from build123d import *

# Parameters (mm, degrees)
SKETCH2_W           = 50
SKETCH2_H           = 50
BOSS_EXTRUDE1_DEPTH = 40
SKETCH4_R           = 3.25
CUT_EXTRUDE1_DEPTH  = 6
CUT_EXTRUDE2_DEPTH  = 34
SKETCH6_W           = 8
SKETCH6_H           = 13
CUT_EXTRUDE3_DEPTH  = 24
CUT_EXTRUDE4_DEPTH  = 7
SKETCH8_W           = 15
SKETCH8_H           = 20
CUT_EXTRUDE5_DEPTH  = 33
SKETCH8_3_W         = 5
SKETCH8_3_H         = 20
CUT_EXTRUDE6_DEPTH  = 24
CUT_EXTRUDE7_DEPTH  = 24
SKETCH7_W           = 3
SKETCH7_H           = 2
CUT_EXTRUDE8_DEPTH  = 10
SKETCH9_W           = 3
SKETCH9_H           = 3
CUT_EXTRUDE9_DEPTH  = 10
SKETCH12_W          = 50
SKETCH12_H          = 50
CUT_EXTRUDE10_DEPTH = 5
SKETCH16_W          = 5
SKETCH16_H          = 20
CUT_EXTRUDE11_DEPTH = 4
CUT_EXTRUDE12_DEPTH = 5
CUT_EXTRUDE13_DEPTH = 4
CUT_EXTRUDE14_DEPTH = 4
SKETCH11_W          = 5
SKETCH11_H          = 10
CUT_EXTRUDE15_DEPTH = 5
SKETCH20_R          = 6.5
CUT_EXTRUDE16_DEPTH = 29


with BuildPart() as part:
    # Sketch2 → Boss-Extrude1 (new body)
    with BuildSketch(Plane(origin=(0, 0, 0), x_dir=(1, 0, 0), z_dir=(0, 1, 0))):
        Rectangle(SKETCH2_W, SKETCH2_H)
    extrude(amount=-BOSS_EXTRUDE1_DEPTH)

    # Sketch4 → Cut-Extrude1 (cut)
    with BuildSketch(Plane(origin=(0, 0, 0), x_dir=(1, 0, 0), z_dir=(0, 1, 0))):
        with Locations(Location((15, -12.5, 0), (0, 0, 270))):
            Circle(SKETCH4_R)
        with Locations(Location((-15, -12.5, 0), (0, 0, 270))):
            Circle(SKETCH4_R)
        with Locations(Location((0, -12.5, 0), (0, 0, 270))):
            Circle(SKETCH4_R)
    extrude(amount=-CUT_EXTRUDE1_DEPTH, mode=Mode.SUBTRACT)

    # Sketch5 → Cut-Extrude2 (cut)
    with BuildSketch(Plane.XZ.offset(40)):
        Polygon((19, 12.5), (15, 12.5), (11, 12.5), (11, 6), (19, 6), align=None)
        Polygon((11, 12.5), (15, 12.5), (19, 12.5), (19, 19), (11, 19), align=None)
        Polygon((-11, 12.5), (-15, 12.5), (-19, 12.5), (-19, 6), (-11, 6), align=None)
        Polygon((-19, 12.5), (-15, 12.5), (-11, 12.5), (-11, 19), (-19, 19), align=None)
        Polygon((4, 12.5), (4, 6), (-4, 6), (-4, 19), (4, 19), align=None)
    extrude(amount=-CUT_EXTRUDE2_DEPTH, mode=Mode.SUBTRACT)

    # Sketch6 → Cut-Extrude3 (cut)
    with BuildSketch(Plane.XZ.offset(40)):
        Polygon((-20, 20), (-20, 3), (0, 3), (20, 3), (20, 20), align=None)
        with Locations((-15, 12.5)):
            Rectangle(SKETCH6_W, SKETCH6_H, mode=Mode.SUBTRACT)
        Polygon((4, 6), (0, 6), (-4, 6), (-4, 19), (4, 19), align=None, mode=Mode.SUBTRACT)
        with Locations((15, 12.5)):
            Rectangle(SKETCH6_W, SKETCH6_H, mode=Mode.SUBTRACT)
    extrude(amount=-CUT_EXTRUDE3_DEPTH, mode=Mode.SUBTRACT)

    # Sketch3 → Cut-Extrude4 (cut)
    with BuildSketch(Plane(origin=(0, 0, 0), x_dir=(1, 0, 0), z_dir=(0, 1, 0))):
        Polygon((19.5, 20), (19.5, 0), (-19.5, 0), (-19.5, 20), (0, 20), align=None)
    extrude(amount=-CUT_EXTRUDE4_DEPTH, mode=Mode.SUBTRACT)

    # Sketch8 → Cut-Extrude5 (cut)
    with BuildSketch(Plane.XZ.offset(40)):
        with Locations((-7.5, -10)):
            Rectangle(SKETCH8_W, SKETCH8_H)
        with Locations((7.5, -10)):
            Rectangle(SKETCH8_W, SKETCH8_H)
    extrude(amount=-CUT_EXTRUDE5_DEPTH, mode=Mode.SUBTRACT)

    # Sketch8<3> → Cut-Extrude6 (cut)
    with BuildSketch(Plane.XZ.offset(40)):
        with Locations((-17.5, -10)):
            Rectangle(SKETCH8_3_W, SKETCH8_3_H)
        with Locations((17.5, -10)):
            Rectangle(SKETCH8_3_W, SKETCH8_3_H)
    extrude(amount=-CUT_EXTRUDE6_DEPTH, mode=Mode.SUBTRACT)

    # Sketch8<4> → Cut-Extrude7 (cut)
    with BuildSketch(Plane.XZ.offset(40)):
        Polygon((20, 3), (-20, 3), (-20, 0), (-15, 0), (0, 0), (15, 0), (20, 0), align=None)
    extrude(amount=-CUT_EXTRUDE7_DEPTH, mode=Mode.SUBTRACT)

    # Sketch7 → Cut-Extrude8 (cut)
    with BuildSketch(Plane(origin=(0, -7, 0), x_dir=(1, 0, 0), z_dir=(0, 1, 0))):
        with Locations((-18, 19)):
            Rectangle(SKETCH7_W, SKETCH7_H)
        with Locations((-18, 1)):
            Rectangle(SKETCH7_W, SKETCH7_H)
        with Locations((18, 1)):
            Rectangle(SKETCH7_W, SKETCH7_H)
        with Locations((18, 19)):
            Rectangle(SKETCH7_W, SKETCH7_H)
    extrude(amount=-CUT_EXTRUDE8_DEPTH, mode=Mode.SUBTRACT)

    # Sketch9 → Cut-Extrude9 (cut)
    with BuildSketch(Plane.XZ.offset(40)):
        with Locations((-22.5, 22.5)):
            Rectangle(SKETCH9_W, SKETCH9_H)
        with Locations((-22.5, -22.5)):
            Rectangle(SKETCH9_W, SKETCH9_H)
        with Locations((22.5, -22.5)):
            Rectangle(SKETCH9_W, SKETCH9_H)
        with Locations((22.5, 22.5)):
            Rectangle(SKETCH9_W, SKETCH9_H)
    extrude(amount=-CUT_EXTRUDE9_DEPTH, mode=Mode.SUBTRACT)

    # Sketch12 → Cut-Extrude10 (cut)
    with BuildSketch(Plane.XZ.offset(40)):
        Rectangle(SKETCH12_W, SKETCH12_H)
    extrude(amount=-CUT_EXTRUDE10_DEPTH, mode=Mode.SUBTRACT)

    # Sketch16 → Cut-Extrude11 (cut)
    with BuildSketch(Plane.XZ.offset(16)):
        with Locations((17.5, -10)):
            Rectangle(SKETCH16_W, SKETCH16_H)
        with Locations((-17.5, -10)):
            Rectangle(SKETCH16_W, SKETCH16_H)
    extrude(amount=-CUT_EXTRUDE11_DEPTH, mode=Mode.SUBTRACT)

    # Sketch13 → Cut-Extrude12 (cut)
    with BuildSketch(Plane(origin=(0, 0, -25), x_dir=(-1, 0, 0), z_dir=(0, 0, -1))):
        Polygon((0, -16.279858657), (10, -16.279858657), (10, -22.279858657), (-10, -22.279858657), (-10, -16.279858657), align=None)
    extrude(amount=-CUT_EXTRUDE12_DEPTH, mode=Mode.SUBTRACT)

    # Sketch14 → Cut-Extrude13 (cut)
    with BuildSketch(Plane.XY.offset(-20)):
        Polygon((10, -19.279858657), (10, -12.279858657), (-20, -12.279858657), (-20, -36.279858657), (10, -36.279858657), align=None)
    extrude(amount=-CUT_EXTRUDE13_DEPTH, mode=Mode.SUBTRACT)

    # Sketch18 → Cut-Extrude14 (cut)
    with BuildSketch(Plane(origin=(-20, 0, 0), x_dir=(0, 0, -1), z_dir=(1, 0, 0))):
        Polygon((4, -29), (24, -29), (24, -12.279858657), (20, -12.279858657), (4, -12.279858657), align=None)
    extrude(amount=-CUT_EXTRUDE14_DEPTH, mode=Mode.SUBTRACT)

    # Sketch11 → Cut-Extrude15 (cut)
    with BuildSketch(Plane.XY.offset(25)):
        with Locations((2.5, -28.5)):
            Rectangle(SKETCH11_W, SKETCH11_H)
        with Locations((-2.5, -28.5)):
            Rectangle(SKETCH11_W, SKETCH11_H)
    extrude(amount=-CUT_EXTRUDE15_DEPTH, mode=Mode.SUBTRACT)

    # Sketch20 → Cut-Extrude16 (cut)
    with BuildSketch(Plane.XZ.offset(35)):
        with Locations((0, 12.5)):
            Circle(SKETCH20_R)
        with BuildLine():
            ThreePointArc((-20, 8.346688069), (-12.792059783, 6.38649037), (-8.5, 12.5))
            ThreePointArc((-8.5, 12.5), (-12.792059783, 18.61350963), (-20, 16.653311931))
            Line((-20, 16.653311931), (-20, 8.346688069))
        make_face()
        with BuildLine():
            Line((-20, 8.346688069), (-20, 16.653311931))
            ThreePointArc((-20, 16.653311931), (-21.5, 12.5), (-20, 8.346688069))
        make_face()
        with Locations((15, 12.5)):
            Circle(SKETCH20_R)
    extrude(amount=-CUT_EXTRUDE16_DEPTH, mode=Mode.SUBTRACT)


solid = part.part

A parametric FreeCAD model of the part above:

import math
import FreeCAD as App
import Part
import Sketcher
Q = App.Units.Quantity


def add_polygon(sketch, points):
    """Adds a closed chain of lines whose ends are joined by coincident constraints."""
    first, n = sketch.GeometryCount, len(points)
    for a, b in zip(points, points[1:] + points[:1]):
        sketch.addGeometry(Part.LineSegment(App.Vector(*a, 0), App.Vector(*b, 0)), False)
    for i in range(n):
        sketch.addConstraint(Sketcher.Constraint("Coincident", first + i, 2, first + (i + 1) % n, 1))

doc = App.newDocument("Part")
body = doc.addObject("PartDesign::Body", "Body")

# Sketch on XZ plane
sketch1 = doc.addObject("Sketcher::SketchObject", "Sketch")
body.addObject(sketch1)
sketch1.AttachmentSupport = (doc.XZ_Plane, [""])
sketch1.MapMode = "FlatFace"
add_polygon(sketch1, [(-25, -25), (-25, 25), (25, 25), (25, -25)])  # lines 0-3
sketch1.addConstraint([
    Sketcher.Constraint("Vertical", 0),
    Sketcher.Constraint("Horizontal", 1),
    Sketcher.Constraint("Vertical", 2),
    Sketcher.Constraint("Horizontal", 3),
    Sketcher.Constraint("Symmetric", 0, 2, 2, 2, -1, 1),
    Sketcher.Constraint("Equal", 3, 0),
    Sketcher.Constraint("DistanceX", 1, 1, 1, 2, Q("50 mm")),
])
pad1 = doc.addObject("PartDesign::Pad", "Pad")
body.addObject(pad1)
pad1.Profile = sketch1
pad1.Length = 40

# Sketch on XZ plane
sketch2 = doc.addObject("Sketcher::SketchObject", "Sketch001")
body.addObject(sketch2)
sketch2.AttachmentSupport = (doc.XZ_Plane, [""])
sketch2.MapMode = "FlatFace"
sketch2.addGeometry([
    Part.Circle(App.Vector(15, 12.5, 0), App.Vector(0, 0, 1), 3.2),
    Part.Circle(App.Vector(-15, 12.5, 0), App.Vector(0, 0, 1), 3.2),
    Part.Circle(App.Vector(0, 12.5, 0), App.Vector(0, 0, 1), 3.2),
], False)
sketch2.addConstraint([
    Sketcher.Constraint("Equal", 0, 1),
    Sketcher.Constraint("Equal", 1, 2),
    Sketcher.Constraint("Symmetric", 0, 3, 1, 3, -2),
    Sketcher.Constraint("PointOnObject", 2, 3, -2),
    Sketcher.Constraint("Horizontal", 1, 3, 2, 3),
    Sketcher.Constraint("Diameter", 0, Q("6.5 mm")),
    Sketcher.Constraint("DistanceX", -1, 1, 0, 3, Q("15 mm")),
    Sketcher.Constraint("DistanceY", -1, 1, 0, 3, Q("12.5 mm")),
])
pocket1 = doc.addObject("PartDesign::Pocket", "Pocket")
body.addObject(pocket1)
pocket1.Profile = sketch2
pocket1.Length = 6
pocket1.Reversed = True

# Sketch on XZ plane
sketch3 = doc.addObject("Sketcher::SketchObject", "Sketch002")
body.addObject(sketch3)
sketch3.AttachmentSupport = (doc.XZ_Plane, [""])
sketch3.MapMode = "FlatFace"
sketch3.AttachmentOffset = App.Placement(App.Vector(0, 0, 40), App.Rotation())
add_polygon(sketch3, [(11, 6), (19, 6), (19, 19), (11, 19)])  # lines 0-3
add_polygon(sketch3, [(-19, 6), (-11, 6), (-11, 19), (-19, 19)])  # lines 4-7
add_polygon(sketch3, [(4, 6), (4, 19), (-4, 19), (-4, 6)])  # lines 8-11
sketch3.addConstraint([
    Sketcher.Constraint("Horizontal", 0),
    Sketcher.Constraint("Vertical", 1),
    Sketcher.Constraint("Horizontal", 2),
    Sketcher.Constraint("Vertical", 3),
    Sketcher.Constraint("Horizontal", 4),
    Sketcher.Constraint("Vertical", 5),
    Sketcher.Constraint("Horizontal", 6),
    Sketcher.Constraint("Vertical", 7),
    Sketcher.Constraint("Vertical", 8),
    Sketcher.Constraint("Horizontal", 9),
    Sketcher.Constraint("Vertical", 10),
    Sketcher.Constraint("Horizontal", 11),
    Sketcher.Constraint("Symmetric", 3, 2, 4, 2, -2),
    Sketcher.Constraint("Symmetric", 1, 2, 6, 2, -2),
    Sketcher.Constraint("Horizontal", 6, 2, 8, 2),
    Sketcher.Constraint("Horizontal", 7, 2, 10, 2),
    Sketcher.Constraint("Equal", 6, 9),
    Sketcher.Constraint("DistanceX", 0, 1, 0, 2, Q("8 mm")),
    Sketcher.Constraint("DistanceY", 1, 1, 1, 2, Q("13 mm")),
    Sketcher.Constraint("DistanceX", -1, 1, 0, 2, Q("19 mm")),
    Sketcher.Constraint("DistanceY", -1, 1, 0, 2, Q("6 mm")),
    Sketcher.Constraint("DistanceX", -1, 1, 8, 2, Q("4 mm")),
])
pocket2 = doc.addObject("PartDesign::Pocket", "Pocket001")
body.addObject(pocket2)
pocket2.Profile = sketch3
pocket2.Length = 34

# Sketch on XZ plane
sketch4 = doc.addObject("Sketcher::SketchObject", "Sketch003")
body.addObject(sketch4)
sketch4.AttachmentSupport = (doc.XZ_Plane, [""])
sketch4.MapMode = "FlatFace"
sketch4.AttachmentOffset = App.Placement(App.Vector(0, 0, 40), App.Rotation())
add_polygon(sketch4, [(-20, 20), (-20, 3), (20, 3), (20, 20)])  # lines 0-3
add_polygon(sketch4, [(-11, 6), (-19, 6), (-19, 19), (-11, 19)])  # lines 4-7
add_polygon(sketch4, [(4, 19), (4, 6), (-4, 6), (-4, 19)])  # lines 8-11
add_polygon(sketch4, [(19, 6), (11, 6), (11, 19), (19, 19)])  # lines 12-15
sketch4.addConstraint([
    Sketcher.Constraint("Vertical", 0),
    Sketcher.Constraint("Horizontal", 1),
    Sketcher.Constraint("Vertical", 2),
    Sketcher.Constraint("Horizontal", 3),
    Sketcher.Constraint("Horizontal", 4),
    Sketcher.Constraint("Vertical", 5),
    Sketcher.Constraint("Horizontal", 6),
    Sketcher.Constraint("Vertical", 7),
    Sketcher.Constraint("Vertical", 8),
    Sketcher.Constraint("Horizontal", 9),
    Sketcher.Constraint("Vertical", 10),
    Sketcher.Constraint("Horizontal", 11),
    Sketcher.Constraint("Horizontal", 12),
    Sketcher.Constraint("Vertical", 13),
    Sketcher.Constraint("Horizontal", 14),
    Sketcher.Constraint("Vertical", 15),
    Sketcher.Constraint("Symmetric", 7, 2, 12, 2, -2),
    Sketcher.Constraint("Symmetric", 5, 2, 14, 2, -2),
    Sketcher.Constraint("Horizontal", 7, 2, 8, 2),
    Sketcher.Constraint("Horizontal", 6, 2, 10, 2),
    Sketcher.Constraint("Equal", 6, 9),
    Sketcher.Constraint("DistanceX", 1, 1, 1, 2, Q("40 mm")),
    Sketcher.Constraint("DistanceX", 4, 2, 4, 1, Q("8 mm")),
    Sketcher.Constraint("DistanceY", 0, 2, 0, 1, Q("17 mm")),
    Sketcher.Constraint("DistanceY", 5, 1, 5, 2, Q("13 mm")),
    Sketcher.Constraint("DistanceX", 0, 2, -1, 1, Q("20 mm")),
    Sketcher.Constraint("DistanceY", -1, 1, 0, 2, Q("3 mm")),
    Sketcher.Constraint("DistanceX", 4, 2, -1, 1, Q("19 mm")),
    Sketcher.Constraint("DistanceY", -1, 1, 4, 2, Q("6 mm")),
    Sketcher.Constraint("DistanceX", -1, 1, 8, 2, Q("4 mm")),
])
pocket3 = doc.addObject("PartDesign::Pocket", "Pocket002")
body.addObject(pocket3)
pocket3.Profile = sketch4
pocket3.Length = 24

# Sketch on XZ plane
sketch5 = doc.addObject("Sketcher::SketchObject", "Sketch004")
body.addObject(sketch5)
sketch5.AttachmentSupport = (doc.XZ_Plane, [""])
sketch5.MapMode = "FlatFace"
add_polygon(sketch5, [(20, 0), (20, -20), (-20, -20), (-20, 0)])  # lines 0-3
sketch5.addConstraint([
    Sketcher.Constraint("Vertical", 0),
    Sketcher.Constraint("Horizontal", 1),
    Sketcher.Constraint("Vertical", 2),
    Sketcher.Constraint("Horizontal", 3),
    Sketcher.Constraint("Symmetric", 2, 2, 3, 2, -1, 1),
    Sketcher.Constraint("DistanceX", 1, 2, 1, 1, Q("39 mm")),
    Sketcher.Constraint("DistanceY", 0, 2, 0, 1, Q("20 mm")),
])
pocket4 = doc.addObject("PartDesign::Pocket", "Pocket003")
body.addObject(pocket4)
pocket4.Profile = sketch5
pocket4.Length = 7
pocket4.Reversed = True

# Sketch on XZ plane
sketch6 = doc.addObject("Sketcher::SketchObject", "Sketch005")
body.addObject(sketch6)
sketch6.AttachmentSupport = (doc.XZ_Plane, [""])
sketch6.MapMode = "FlatFace"
sketch6.AttachmentOffset = App.Placement(App.Vector(0, 0, 40), App.Rotation())
add_polygon(sketch6, [(-15, 0), (-15, -20), (15, -20), (15, 0)])  # lines 0-3
sketch6.addConstraint([
    Sketcher.Constraint("Vertical", 0),
    Sketcher.Constraint("Horizontal", 1),
    Sketcher.Constraint("Vertical", 2),
    Sketcher.Constraint("Horizontal", 3),
    Sketcher.Constraint("Symmetric", 2, 2, 3, 2, -1, 1),
    Sketcher.Constraint("DistanceX", 1, 1, 1, 2, Q("30 mm")),
    Sketcher.Constraint("DistanceY", 0, 2, 0, 1, Q("20 mm")),
])
pocket5 = doc.addObject("PartDesign::Pocket", "Pocket004")
body.addObject(pocket5)
pocket5.Profile = sketch6
pocket5.Length = 33

# Sketch on XZ plane
sketch7 = doc.addObject("Sketcher::SketchObject", "Sketch006")
body.addObject(sketch7)
sketch7.AttachmentSupport = (doc.XZ_Plane, [""])
sketch7.MapMode = "FlatFace"
sketch7.AttachmentOffset = App.Placement(App.Vector(0, 0, 40), App.Rotation())
add_polygon(sketch7, [(-20, 0), (-20, -20), (-15, -20), (-15, 0)])  # lines 0-3
add_polygon(sketch7, [(15, 0), (15, -20), (20, -20), (20, 0)])  # lines 4-7
sketch7.addConstraint([
    Sketcher.Constraint("Vertical", 0),
    Sketcher.Constraint("Horizontal", 1),
    Sketcher.Constraint("Vertical", 2),
    Sketcher.Constraint("Horizontal", 3),
    Sketcher.Constraint("Vertical", 4),
    Sketcher.Constraint("Horizontal", 5),
    Sketcher.Constraint("Vertical", 6),
    Sketcher.Constraint("Horizontal", 7),
    Sketcher.Constraint("Symmetric", 3, 2, 6, 2, -1, 1),
    Sketcher.Constraint("Symmetric", 1, 2, 4, 2, -2),
    Sketcher.Constraint("PointOnObject", 2, 2, -1),
    Sketcher.Constraint("DistanceX", 1, 1, 1, 2, Q("5 mm")),
    Sketcher.Constraint("DistanceY", 0, 2, 0, 1, Q("20 mm")),
    Sketcher.Constraint("DistanceX", 0, 2, -1, 1, Q("20 mm")),
])
pocket6 = doc.addObject("PartDesign::Pocket", "Pocket005")
body.addObject(pocket6)
pocket6.Profile = sketch7
pocket6.Length = 24

# Sketch on XZ plane
sketch8 = doc.addObject("Sketcher::SketchObject", "Sketch007")
body.addObject(sketch8)
sketch8.AttachmentSupport = (doc.XZ_Plane, [""])
sketch8.MapMode = "FlatFace"
sketch8.AttachmentOffset = App.Placement(App.Vector(0, 0, 40), App.Rotation())
add_polygon(sketch8, [(20, 3), (-20, 3), (-20, 0), (20, 0)])  # lines 0-3
sketch8.addConstraint([
    Sketcher.Constraint("Horizontal", 0),
    Sketcher.Constraint("Vertical", 1),
    Sketcher.Constraint("Horizontal", 2),
    Sketcher.Constraint("Vertical", 3),
    Sketcher.Constraint("Symmetric", 1, 2, 2, 2, -1, 1),
    Sketcher.Constraint("DistanceX", 0, 2, 0, 1, Q("40 mm")),
    Sketcher.Constraint("DistanceY", 1, 2, 1, 1, Q("3 mm")),
])
pocket7 = doc.addObject("PartDesign::Pocket", "Pocket006")
body.addObject(pocket7)
pocket7.Profile = sketch8
pocket7.Length = 24

# Sketch on XZ plane
sketch9 = doc.addObject("Sketcher::SketchObject", "Sketch008")
body.addObject(sketch9)
sketch9.AttachmentSupport = (doc.XZ_Plane, [""])
sketch9.MapMode = "FlatFace"
sketch9.AttachmentOffset = App.Placement(App.Vector(0, 0, 7), App.Rotation())
add_polygon(sketch9, [(-19.5, -20), (-19.5, -18), (-16.5, -18), (-16.5, -20)])  # lines 0-3
add_polygon(sketch9, [(-19.5, -2), (-19.5, 0), (-16.5, 0), (-16.5, -2)])  # lines 4-7
add_polygon(sketch9, [(16.5, -2), (16.5, 0), (19.5, 0), (19.5, -2)])  # lines 8-11
add_polygon(sketch9, [(16.5, -20), (16.5, -18), (19.5, -18), (19.5, -20)])  # lines 12-15
sketch9.addConstraint([
    Sketcher.Constraint("Vertical", 0),
    Sketcher.Constraint("Horizontal", 1),
    Sketcher.Constraint("Vertical", 2),
    Sketcher.Constraint("Horizontal", 3),
    Sketcher.Constraint("Vertical", 4),
    Sketcher.Constraint("Horizontal", 5),
    Sketcher.Constraint("Vertical", 6),
    Sketcher.Constraint("Horizontal", 7),
    Sketcher.Constraint("Vertical", 8),
    Sketcher.Constraint("Horizontal", 9),
    Sketcher.Constraint("Vertical", 10),
    Sketcher.Constraint("Horizontal", 11),
    Sketcher.Constraint("Vertical", 12),
    Sketcher.Constraint("Horizontal", 13),
    Sketcher.Constraint("Vertical", 14),
    Sketcher.Constraint("Horizontal", 15),
    Sketcher.Constraint("Symmetric", 5, 2, 8, 2, -1, 1),
    Sketcher.Constraint("Symmetric", 4, 2, 9, 2, -2),
    Sketcher.Constraint("Symmetric", 1, 2, 12, 2, -2),
    Sketcher.Constraint("Symmetric", 3, 2, 14, 2, -2),
    Sketcher.Constraint("Horizontal", 7, 2, 10, 2),
    Sketcher.Constraint("Vertical", 3, 2, 4, 2),
    Sketcher.Constraint("Vertical", 2, 2, 5, 2),
    Sketcher.Constraint("Equal", 2, 4),
    Sketcher.Constraint("DistanceX", 1, 1, 1, 2, Q("3 mm")),
    Sketcher.Constraint("DistanceY", 0, 1, 0, 2, Q("2 mm")),
    Sketcher.Constraint("DistanceY", 0, 2, -1, 1, Q("18 mm")),
    Sketcher.Constraint("DistanceX", 5, 2, 8, 2, Q("33 mm")),
])
pocket8 = doc.addObject("PartDesign::Pocket", "Pocket007")
body.addObject(pocket8)
pocket8.Profile = sketch9
pocket8.Length = 10
pocket8.Reversed = True

# Sketch on XZ plane
sketch10 = doc.addObject("Sketcher::SketchObject", "Sketch009")
body.addObject(sketch10)
sketch10.AttachmentSupport = (doc.XZ_Plane, [""])
sketch10.MapMode = "FlatFace"
sketch10.AttachmentOffset = App.Placement(App.Vector(0, 0, 40), App.Rotation())
add_polygon(sketch10, [(-24, 24), (-24, 21), (-21, 21), (-21, 24)])  # lines 0-3
add_polygon(sketch10, [(-24, -21), (-24, -24), (-21, -24), (-21, -21)])  # lines 4-7
add_polygon(sketch10, [(21, -21), (21, -24), (24, -24), (24, -21)])  # lines 8-11
add_polygon(sketch10, [(21, 24), (21, 21), (24, 21), (24, 24)])  # lines 12-15
sketch10.addConstraint([
    Sketcher.Constraint("Vertical", 0),
    Sketcher.Constraint("Horizontal", 1),
    Sketcher.Constraint("Vertical", 2),
    Sketcher.Constraint("Horizontal", 3),
    Sketcher.Constraint("Vertical", 4),
    Sketcher.Constraint("Horizontal", 5),
    Sketcher.Constraint("Vertical", 6),
    Sketcher.Constraint("Horizontal", 7),
    Sketcher.Constraint("Vertical", 8),
    Sketcher.Constraint("Horizontal", 9),
    Sketcher.Constraint("Vertical", 10),
    Sketcher.Constraint("Horizontal", 11),
    Sketcher.Constraint("Vertical", 12),
    Sketcher.Constraint("Horizontal", 13),
    Sketcher.Constraint("Vertical", 14),
    Sketcher.Constraint("Horizontal", 15),
    Sketcher.Constraint("Symmetric", 2, 2, 8, 2, -1, 1),
    Sketcher.Constraint("Symmetric", 0, 2, 10, 2, -1, 1),
    Sketcher.Constraint("Symmetric", 6, 2, 12, 2, -1, 1),
    Sketcher.Constraint("Symmetric", 4, 2, 14, 2, -1, 1),
    Sketcher.Constraint("Symmetric", 5, 2, 8, 2, -2),
    Sketcher.Constraint("Symmetric", 7, 2, 10, 2, -2),
    Sketcher.Constraint("Equal", 15, 0),
    Sketcher.Constraint("DistanceX", 1, 1, 1, 2, Q("3 mm")),
    Sketcher.Constraint("DistanceX", 0, 2, -1, 1, Q("24 mm")),
    Sketcher.Constraint("DistanceY", -1, 1, 0, 2, Q("21 mm")),
])
pocket9 = doc.addObject("PartDesign::Pocket", "Pocket008")
body.addObject(pocket9)
pocket9.Profile = sketch10
pocket9.Length = 10

# Sketch on XZ plane
sketch11 = doc.addObject("Sketcher::SketchObject", "Sketch010")
body.addObject(sketch11)
sketch11.AttachmentSupport = (doc.XZ_Plane, [""])
sketch11.MapMode = "FlatFace"
sketch11.AttachmentOffset = App.Placement(App.Vector(0, 0, 40), App.Rotation())
add_polygon(sketch11, [(-25, 25), (-25, -25), (25, -25), (25, 25)])  # lines 0-3
sketch11.addConstraint([
    Sketcher.Constraint("Vertical", 0),
    Sketcher.Constraint("Horizontal", 1),
    Sketcher.Constraint("Vertical", 2),
    Sketcher.Constraint("Horizontal", 3),
    Sketcher.Constraint("Symmetric", 0, 2, 2, 2, -1, 1),
    Sketcher.Constraint("Equal", 3, 0),
    Sketcher.Constraint("DistanceX", 1, 1, 1, 2, Q("50 mm")),
])
pocket10 = doc.addObject("PartDesign::Pocket", "Pocket009")
body.addObject(pocket10)
pocket10.Profile = sketch11
pocket10.Length = 5

# Sketch on XZ plane
sketch12 = doc.addObject("Sketcher::SketchObject", "Sketch011")
body.addObject(sketch12)
sketch12.AttachmentSupport = (doc.XZ_Plane, [""])
sketch12.MapMode = "FlatFace"
sketch12.AttachmentOffset = App.Placement(App.Vector(0, 0, 16), App.Rotation())
add_polygon(sketch12, [(15, 0), (15, -20), (20, -20), (20, 0)])  # lines 0-3
add_polygon(sketch12, [(-20, 0), (-20, -20), (-15, -20), (-15, 0)])  # lines 4-7
sketch12.addConstraint([
    Sketcher.Constraint("Vertical", 0),
    Sketcher.Constraint("Horizontal", 1),
    Sketcher.Constraint("Vertical", 2),
    Sketcher.Constraint("Horizontal", 3),
    Sketcher.Constraint("Vertical", 4),
    Sketcher.Constraint("Horizontal", 5),
    Sketcher.Constraint("Vertical", 6),
    Sketcher.Constraint("Horizontal", 7),
    Sketcher.Constraint("Symmetric", 3, 2, 6, 2, -1, 1),
    Sketcher.Constraint("Symmetric", 1, 2, 4, 2, -2),
    Sketcher.Constraint("PointOnObject", 2, 2, -1),
    Sketcher.Constraint("DistanceX", 1, 1, 1, 2, Q("5 mm")),
    Sketcher.Constraint("DistanceY", 0, 2, 0, 1, Q("20 mm")),
    Sketcher.Constraint("DistanceX", -1, 1, 0, 2, Q("15 mm")),
])
pocket11 = doc.addObject("PartDesign::Pocket", "Pocket010")
body.addObject(pocket11)
pocket11.Profile = sketch12
pocket11.Length = 4

# Sketch on XY plane
sketch13 = doc.addObject("Sketcher::SketchObject", "Sketch012")
body.addObject(sketch13)
sketch13.AttachmentSupport = (doc.XY_Plane, [""])
sketch13.MapMode = "FlatFace"
sketch13.AttachmentOffset = App.Placement(App.Vector(0, 0, -25), App.Rotation())
add_polygon(sketch13, [(-10, -16), (10, -16), (10, -22), (-10, -22)])  # lines 0-3
sketch13.addConstraint([
    Sketcher.Constraint("Horizontal", 0),
    Sketcher.Constraint("Vertical", 1),
    Sketcher.Constraint("Horizontal", 2),
    Sketcher.Constraint("Vertical", 3),
    Sketcher.Constraint("DistanceX", 0, 1, 0, 2, Q("20 mm")),
    Sketcher.Constraint("DistanceY", 1, 2, 1, 1, Q("6 mm")),
    Sketcher.Constraint("DistanceX", -1, 1, 0, 2, Q("10 mm")),
    Sketcher.Constraint("DistanceY", 0, 2, -1, 1, Q("16.279859 mm")),
])
pocket12 = doc.addObject("PartDesign::Pocket", "Pocket011")
body.addObject(pocket12)
pocket12.Profile = sketch13
pocket12.Length = 5
pocket12.Reversed = True

# Sketch on XY plane
sketch14 = doc.addObject("Sketcher::SketchObject", "Sketch013")
body.addObject(sketch14)
sketch14.AttachmentSupport = (doc.XY_Plane, [""])
sketch14.MapMode = "FlatFace"
sketch14.AttachmentOffset = App.Placement(App.Vector(0, 0, -20), App.Rotation())
add_polygon(sketch14, [(10, -12), (-20, -12), (-20, -36), (10, -36)])  # lines 0-3
sketch14.addConstraint([
    Sketcher.Constraint("Horizontal", 0),
    Sketcher.Constraint("Vertical", 1),
    Sketcher.Constraint("Horizontal", 2),
    Sketcher.Constraint("Vertical", 3),
    Sketcher.Constraint("DistanceX", 0, 2, 0, 1, Q("30 mm")),
    Sketcher.Constraint("DistanceY", 1, 2, 1, 1, Q("24 mm")),
    Sketcher.Constraint("DistanceX", 0, 2, -1, 1, Q("20 mm")),
    Sketcher.Constraint("DistanceY", 0, 2, -1, 1, Q("12.279859 mm")),
])
pocket13 = doc.addObject("PartDesign::Pocket", "Pocket012")
body.addObject(pocket13)
pocket13.Profile = sketch14
pocket13.Length = 4

# Sketch on YZ plane
sketch15 = doc.addObject("Sketcher::SketchObject", "Sketch014")
body.addObject(sketch15)
sketch15.AttachmentSupport = (doc.YZ_Plane, [""])
sketch15.MapMode = "FlatFace"
sketch15.AttachmentOffset = App.Placement(App.Vector(0, 0, -20), App.Rotation())
add_polygon(sketch15, [(-29, -4), (-29, -24), (-12, -24), (-12, -4)])  # lines 0-3
sketch15.addConstraint([
    Sketcher.Constraint("Vertical", 0),
    Sketcher.Constraint("Horizontal", 1),
    Sketcher.Constraint("Vertical", 2),
    Sketcher.Constraint("Horizontal", 3),
    Sketcher.Constraint("DistanceY", 0, 2, 0, 1, Q("20 mm")),
    Sketcher.Constraint("DistanceX", 0, 2, -1, 1, Q("29 mm")),
    Sketcher.Constraint("DistanceY", 0, 2, -1, 1, Q("24 mm")),
    Sketcher.Constraint("DistanceX", 1, 1, 1, 2, Q("16.720141 mm")),
])
pocket14 = doc.addObject("PartDesign::Pocket", "Pocket013")
body.addObject(pocket14)
pocket14.Profile = sketch15
pocket14.Length = 4

# Sketch on XY plane
sketch16 = doc.addObject("Sketcher::SketchObject", "Sketch015")
body.addObject(sketch16)
sketch16.AttachmentSupport = (doc.XY_Plane, [""])
sketch16.MapMode = "FlatFace"
sketch16.AttachmentOffset = App.Placement(App.Vector(0, 0, 25), App.Rotation())
add_polygon(sketch16, [(5, -34), (5, -24), (-5, -24), (-5, -34)])  # lines 0-3
sketch16.addConstraint([
    Sketcher.Constraint("Vertical", 0),
    Sketcher.Constraint("Horizontal", 1),
    Sketcher.Constraint("Vertical", 2),
    Sketcher.Constraint("Horizontal", 3),
    Sketcher.Constraint("Equal", 3, 0),
    Sketcher.Constraint("DistanceX", 1, 2, 1, 1, Q("10 mm")),
    Sketcher.Constraint("DistanceX", -1, 1, 0, 2, Q("5 mm")),
    Sketcher.Constraint("DistanceY", 0, 2, -1, 1, Q("23.5 mm")),
])
pocket15 = doc.addObject("PartDesign::Pocket", "Pocket014")
body.addObject(pocket15)
pocket15.Profile = sketch16
pocket15.Length = 5

# Sketch on XZ plane
sketch17 = doc.addObject("Sketcher::SketchObject", "Sketch016")
body.addObject(sketch17)
sketch17.AttachmentSupport = (doc.XZ_Plane, [""])
sketch17.MapMode = "FlatFace"
sketch17.AttachmentOffset = App.Placement(App.Vector(0, 0, 35), App.Rotation())
sketch17.addGeometry([
    Part.Circle(App.Vector(0, 12, 0), App.Vector(0, 0, 1), 6),  # 0
    Part.ArcOfCircle(Part.Circle(App.Vector(-15, 12, 0), App.Vector(0, 0, 1), 6), math.radians(-140), math.radians(0)),  # 1
    Part.ArcOfCircle(Part.Circle(App.Vector(-15, 12, 0), App.Vector(0, 0, 1), 6), math.radians(0), math.radians(140)),  # 2
    Part.ArcOfCircle(Part.Circle(App.Vector(-15, 12, 0), App.Vector(0, 0, 1), 6), math.radians(140), math.radians(220)),  # 3
    Part.Circle(App.Vector(15, 12, 0), App.Vector(0, 0, 1), 6),  # 4
], False)
sketch17.addConstraint([
    Sketcher.Constraint("Tangent", 1, 2, 2, 1),
    Sketcher.Constraint("Tangent", 2, 2, 3, 1),
    Sketcher.Constraint("Tangent", 3, 2, 1, 1),
    Sketcher.Constraint("Equal", 0, 1),
    Sketcher.Constraint("Equal", 3, 4),
    Sketcher.Constraint("Symmetric", 1, 3, 4, 3, -2),
    Sketcher.Constraint("PointOnObject", 0, 3, -2),
    Sketcher.Constraint("Horizontal", 0, 3, 1, 3),
    Sketcher.Constraint("Horizontal", 4, 3, 1, 2),
    Sketcher.Constraint("Vertical", 2, 2, 3, 2),
    Sketcher.Constraint("Diameter", 0, Q("13 mm")),
    Sketcher.Constraint("DistanceX", 1, 3, -1, 1, Q("15 mm")),
    Sketcher.Constraint("DistanceX", 2, 2, -1, 1, Q("20 mm")),
    Sketcher.Constraint("DistanceY", -1, 1, 0, 3, Q("12.5 mm")),
])
pocket16 = doc.addObject("PartDesign::Pocket", "Pocket015")
body.addObject(pocket16)
pocket16.Profile = sketch17
pocket16.Length = 29

doc.recompute()
